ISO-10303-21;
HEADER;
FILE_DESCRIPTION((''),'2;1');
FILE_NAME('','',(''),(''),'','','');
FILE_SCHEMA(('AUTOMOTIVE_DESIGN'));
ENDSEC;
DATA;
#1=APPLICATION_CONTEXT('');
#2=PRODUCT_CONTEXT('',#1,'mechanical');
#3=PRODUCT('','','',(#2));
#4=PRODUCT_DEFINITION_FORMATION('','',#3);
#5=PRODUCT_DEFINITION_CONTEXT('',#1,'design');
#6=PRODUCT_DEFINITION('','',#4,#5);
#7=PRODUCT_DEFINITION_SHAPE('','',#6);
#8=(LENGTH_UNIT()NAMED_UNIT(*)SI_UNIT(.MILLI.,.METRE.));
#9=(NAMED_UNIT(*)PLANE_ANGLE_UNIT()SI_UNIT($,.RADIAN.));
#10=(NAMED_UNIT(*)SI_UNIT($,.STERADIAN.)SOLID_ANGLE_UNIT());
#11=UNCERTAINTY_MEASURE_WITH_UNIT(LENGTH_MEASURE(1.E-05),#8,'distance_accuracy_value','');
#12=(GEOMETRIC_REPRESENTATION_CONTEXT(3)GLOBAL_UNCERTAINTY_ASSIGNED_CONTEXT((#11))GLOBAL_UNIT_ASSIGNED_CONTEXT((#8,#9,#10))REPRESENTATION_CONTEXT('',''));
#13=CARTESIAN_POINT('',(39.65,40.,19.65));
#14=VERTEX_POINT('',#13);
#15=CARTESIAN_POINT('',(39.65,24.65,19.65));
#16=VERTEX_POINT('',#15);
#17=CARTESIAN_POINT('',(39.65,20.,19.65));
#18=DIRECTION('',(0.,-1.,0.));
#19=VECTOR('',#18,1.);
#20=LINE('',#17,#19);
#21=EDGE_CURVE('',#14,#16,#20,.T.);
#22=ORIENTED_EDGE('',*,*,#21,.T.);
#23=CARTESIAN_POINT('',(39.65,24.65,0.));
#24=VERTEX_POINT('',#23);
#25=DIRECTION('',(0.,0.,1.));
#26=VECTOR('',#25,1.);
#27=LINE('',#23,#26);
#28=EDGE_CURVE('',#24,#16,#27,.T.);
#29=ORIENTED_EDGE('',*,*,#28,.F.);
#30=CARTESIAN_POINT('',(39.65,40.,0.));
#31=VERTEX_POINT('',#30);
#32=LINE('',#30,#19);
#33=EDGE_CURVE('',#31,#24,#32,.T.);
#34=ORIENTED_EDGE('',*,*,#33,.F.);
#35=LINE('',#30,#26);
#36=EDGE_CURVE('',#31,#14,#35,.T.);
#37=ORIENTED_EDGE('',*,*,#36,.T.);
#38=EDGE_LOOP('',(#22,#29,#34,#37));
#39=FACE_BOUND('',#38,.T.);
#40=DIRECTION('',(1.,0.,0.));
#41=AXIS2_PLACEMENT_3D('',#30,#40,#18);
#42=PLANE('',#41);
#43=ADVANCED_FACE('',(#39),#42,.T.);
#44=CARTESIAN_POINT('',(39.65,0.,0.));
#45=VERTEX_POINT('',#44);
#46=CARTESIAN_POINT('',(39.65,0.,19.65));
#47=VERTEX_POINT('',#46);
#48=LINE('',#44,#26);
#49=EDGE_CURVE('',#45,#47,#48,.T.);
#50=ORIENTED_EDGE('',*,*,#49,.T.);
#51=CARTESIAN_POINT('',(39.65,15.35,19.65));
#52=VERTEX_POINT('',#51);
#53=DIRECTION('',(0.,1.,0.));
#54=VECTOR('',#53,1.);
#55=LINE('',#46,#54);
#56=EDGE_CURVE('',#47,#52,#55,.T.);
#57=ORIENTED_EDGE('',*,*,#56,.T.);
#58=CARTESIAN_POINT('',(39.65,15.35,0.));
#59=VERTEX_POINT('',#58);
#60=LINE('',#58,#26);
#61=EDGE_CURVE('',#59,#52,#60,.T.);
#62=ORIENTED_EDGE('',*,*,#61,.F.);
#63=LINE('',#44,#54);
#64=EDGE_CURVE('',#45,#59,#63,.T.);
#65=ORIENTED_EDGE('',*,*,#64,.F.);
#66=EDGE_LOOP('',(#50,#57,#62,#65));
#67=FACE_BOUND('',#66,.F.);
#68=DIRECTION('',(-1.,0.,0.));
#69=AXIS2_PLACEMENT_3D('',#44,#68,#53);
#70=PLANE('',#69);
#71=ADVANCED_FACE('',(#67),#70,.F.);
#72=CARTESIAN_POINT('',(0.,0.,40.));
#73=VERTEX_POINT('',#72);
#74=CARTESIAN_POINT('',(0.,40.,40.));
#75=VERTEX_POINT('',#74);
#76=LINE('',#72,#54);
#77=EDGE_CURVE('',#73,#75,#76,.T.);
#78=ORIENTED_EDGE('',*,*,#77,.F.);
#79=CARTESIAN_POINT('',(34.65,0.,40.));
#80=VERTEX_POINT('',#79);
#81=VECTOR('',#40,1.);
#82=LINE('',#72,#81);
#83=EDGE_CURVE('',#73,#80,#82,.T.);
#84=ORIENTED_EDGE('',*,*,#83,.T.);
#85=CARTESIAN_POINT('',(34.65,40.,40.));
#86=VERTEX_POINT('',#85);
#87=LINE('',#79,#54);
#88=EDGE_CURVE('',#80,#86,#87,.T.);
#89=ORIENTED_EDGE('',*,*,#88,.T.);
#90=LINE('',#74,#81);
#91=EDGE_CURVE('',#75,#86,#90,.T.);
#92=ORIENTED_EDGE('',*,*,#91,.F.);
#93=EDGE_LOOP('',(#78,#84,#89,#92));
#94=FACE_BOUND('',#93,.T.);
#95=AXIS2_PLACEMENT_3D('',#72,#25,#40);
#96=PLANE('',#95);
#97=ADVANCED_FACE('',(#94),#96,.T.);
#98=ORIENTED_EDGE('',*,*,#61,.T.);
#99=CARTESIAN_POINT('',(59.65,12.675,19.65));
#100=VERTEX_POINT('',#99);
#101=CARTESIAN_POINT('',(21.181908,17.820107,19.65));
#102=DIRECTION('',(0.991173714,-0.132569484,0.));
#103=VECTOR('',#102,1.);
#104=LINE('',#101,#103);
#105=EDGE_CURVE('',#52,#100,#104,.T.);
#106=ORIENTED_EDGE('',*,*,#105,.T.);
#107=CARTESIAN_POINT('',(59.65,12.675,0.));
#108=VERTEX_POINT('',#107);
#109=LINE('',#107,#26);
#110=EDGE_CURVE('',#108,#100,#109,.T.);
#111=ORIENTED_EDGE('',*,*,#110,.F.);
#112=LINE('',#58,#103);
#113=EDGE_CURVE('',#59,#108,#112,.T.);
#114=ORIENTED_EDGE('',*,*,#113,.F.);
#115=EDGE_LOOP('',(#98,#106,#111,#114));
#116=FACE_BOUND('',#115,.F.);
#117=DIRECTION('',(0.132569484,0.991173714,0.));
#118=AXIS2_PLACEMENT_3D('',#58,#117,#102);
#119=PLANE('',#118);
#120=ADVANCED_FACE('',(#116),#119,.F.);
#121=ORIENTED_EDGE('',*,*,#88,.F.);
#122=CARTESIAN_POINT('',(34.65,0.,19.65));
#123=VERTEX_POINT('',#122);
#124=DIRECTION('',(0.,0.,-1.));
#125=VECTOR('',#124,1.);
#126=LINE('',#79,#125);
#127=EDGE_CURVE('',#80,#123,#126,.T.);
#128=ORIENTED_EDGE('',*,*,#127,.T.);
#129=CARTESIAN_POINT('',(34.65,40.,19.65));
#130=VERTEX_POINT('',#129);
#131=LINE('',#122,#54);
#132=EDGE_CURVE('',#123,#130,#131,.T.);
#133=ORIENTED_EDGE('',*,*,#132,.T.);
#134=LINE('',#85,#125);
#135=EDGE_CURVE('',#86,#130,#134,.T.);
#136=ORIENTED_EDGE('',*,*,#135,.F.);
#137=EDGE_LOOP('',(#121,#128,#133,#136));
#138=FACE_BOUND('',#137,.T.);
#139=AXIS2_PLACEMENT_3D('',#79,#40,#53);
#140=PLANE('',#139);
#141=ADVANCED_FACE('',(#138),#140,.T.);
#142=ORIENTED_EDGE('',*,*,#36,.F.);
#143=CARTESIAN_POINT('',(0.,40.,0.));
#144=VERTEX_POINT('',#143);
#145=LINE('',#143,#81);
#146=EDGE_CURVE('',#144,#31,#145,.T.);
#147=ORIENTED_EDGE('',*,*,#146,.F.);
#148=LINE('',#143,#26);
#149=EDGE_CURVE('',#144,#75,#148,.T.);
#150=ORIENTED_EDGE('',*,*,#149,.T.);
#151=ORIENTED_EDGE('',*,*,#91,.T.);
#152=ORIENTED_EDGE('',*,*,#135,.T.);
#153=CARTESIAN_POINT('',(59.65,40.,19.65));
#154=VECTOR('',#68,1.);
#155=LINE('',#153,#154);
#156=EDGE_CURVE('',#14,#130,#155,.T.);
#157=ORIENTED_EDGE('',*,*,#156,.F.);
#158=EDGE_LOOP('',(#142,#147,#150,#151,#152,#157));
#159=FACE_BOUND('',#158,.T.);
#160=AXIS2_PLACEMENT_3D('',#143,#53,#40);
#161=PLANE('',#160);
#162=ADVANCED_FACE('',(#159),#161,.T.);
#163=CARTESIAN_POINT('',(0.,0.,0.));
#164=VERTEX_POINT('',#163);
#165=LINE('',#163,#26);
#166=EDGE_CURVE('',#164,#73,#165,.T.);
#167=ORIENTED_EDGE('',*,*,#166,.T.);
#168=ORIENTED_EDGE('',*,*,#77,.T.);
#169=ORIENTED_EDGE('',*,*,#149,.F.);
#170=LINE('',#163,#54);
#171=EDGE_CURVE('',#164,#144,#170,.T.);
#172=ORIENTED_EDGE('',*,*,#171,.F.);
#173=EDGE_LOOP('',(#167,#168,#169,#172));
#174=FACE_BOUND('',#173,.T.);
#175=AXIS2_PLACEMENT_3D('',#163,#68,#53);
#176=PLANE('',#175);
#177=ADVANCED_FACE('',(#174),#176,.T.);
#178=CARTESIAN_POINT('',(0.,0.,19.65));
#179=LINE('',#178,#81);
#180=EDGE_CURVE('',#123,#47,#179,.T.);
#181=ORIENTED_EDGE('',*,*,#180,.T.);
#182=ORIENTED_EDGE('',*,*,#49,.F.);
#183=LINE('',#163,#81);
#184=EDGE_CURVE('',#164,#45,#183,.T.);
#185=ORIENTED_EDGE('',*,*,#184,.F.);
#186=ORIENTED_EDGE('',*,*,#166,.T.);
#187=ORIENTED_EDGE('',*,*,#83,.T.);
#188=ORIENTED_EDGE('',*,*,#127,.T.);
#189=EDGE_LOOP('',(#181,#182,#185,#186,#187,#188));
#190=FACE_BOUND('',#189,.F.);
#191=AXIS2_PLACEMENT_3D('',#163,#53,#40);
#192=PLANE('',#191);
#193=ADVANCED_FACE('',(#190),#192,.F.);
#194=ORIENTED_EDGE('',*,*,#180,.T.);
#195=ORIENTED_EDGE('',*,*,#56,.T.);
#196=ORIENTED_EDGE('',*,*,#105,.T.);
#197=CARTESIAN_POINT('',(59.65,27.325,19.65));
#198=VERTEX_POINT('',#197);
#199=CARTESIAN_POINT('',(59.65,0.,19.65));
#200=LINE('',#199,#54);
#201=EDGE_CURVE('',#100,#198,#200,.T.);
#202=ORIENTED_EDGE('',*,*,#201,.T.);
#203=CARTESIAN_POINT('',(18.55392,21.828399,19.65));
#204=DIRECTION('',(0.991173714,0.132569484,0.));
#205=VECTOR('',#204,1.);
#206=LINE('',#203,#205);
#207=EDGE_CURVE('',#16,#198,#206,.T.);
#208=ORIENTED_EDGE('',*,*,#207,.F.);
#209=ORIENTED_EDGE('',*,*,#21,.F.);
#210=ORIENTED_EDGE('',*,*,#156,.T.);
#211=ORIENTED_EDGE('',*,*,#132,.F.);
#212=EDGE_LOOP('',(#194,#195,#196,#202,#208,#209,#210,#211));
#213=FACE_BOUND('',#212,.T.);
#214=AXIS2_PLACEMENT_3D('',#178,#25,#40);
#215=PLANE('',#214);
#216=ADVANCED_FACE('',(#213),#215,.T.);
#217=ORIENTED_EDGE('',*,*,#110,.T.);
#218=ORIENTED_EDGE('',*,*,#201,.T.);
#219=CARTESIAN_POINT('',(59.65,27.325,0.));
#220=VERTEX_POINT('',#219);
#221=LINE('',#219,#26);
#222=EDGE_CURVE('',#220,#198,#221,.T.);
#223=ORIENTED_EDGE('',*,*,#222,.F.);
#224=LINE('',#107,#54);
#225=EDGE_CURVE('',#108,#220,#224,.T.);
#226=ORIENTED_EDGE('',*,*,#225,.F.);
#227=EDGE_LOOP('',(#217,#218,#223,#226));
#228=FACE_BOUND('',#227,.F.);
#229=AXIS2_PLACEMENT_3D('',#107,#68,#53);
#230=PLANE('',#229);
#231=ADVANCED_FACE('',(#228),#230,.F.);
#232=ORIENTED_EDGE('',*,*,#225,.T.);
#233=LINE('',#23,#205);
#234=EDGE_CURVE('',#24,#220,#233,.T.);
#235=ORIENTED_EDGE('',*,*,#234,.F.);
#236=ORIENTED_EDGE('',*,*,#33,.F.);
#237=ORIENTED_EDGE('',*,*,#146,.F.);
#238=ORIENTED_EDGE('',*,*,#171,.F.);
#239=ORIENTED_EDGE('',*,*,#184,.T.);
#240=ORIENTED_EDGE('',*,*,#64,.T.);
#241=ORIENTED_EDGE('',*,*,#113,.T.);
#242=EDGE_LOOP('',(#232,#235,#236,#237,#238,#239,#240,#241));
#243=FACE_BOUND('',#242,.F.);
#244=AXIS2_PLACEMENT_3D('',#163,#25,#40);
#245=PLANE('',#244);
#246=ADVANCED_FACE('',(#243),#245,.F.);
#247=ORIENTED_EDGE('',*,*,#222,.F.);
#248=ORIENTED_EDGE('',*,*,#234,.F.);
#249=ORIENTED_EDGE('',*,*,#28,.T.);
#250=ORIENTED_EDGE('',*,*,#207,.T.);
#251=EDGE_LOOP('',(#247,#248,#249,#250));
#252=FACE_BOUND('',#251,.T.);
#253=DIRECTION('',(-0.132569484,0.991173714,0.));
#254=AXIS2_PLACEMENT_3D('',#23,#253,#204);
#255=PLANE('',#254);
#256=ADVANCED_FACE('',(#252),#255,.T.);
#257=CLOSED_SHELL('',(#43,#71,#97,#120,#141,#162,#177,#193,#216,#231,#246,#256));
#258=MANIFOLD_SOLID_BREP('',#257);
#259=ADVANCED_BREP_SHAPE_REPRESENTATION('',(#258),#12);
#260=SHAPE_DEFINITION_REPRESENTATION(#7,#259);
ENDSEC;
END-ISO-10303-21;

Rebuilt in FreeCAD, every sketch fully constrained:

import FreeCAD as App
import Part
import Sketcher
from FreeCAD import Vector
Q = App.Units.Quantity


def add_polygon(sketch, points):
    """Adds a closed chain of lines whose ends are joined by coincident constraints."""
    first, n = sketch.GeometryCount, len(points)
    for a, b in zip(points, points[1:] + points[:1]):
        sketch.addGeometry(Part.LineSegment(App.Vector(*a, 0), App.Vector(*b, 0)), False)
    for i in range(n):
        sketch.addConstraint(Sketcher.Constraint("Coincident", first + i, 2, first + (i + 1) % n, 1))

doc = App.newDocument("Part")
body = doc.addObject("PartDesign::Body", "Body")

# Sketch on XY plane
sketch1 = doc.addObject("Sketcher::SketchObject", "Sketch")
body.addObject(sketch1)
sketch1.AttachmentSupport = (doc.XY_Plane, [""])
sketch1.MapMode = "FlatFace"
add_polygon(sketch1, [(0, 40), (0, 0), (39.65, 0), (39.65, 15.35), (59.65, 12.675), (59.65, 27.325), (39.65, 24.65), (39.65, 40)])  # lines 0-7
sketch1.addConstraint([
    Sketcher.Constraint("Vertical", 0),
    Sketcher.Constraint("Horizontal", 1),
    Sketcher.Constraint("Vertical", 2),
    Sketcher.Constraint("Vertical", 4),
    Sketcher.Constraint("Vertical", 6),
    Sketcher.Constraint("Horizontal", 7),
    Sketcher.Constraint("Coincident", 0, 2, -1, 1),
    Sketcher.Constraint("Vertical", 2, 2, 5, 2),
    Sketcher.Constraint("Equal", 2, 6),
    Sketcher.Constraint("Equal", 3, 5),
    Sketcher.Constraint("DistanceY", 0, 2, 0, 1, Q("40 mm")),
    Sketcher.Constraint("DistanceX", 2, 2, 3, 2, Q("20 mm")),
    Sketcher.Constraint("DistanceX", 1, 1, 1, 2, Q("39.65 mm")),
    Sketcher.Constraint("DistanceY", 2, 1, 2, 2, Q("15.35 mm")),
    Sketcher.Constraint("DistanceY", -1, 1, 3, 2, Q("12.675 mm")),
])
pad1 = doc.addObject("PartDesign::Pad", "Pad")
body.addObject(pad1)
pad1.Profile = sketch1
pad1.Length = 40

# Sketch on XY plane
sketch2 = doc.addObject("Sketcher::SketchObject", "Sketch001")
body.addObject(sketch2)
sketch2.AttachmentSupport = (doc.XY_Plane, [""])
sketch2.MapMode = "FlatFace"
sketch2.AttachmentOffset = App.Placement(Vector(0, 0, 40), App.Rotation())
add_polygon(sketch2, [(34.65, 40), (34.65, 0), (59.65, 0), (59.65, 40)])  # lines 0-3
sketch2.addConstraint([
    Sketcher.Constraint("Vertical", 0),
    Sketcher.Constraint("Horizontal", 1),
    Sketcher.Constraint("Vertical", 2),
    Sketcher.Constraint("Horizontal", 3),
    Sketcher.Constraint("PointOnObject", 0, 2, -1),
    Sketcher.Constraint("DistanceX", 1, 1, 1, 2, Q("25 mm")),
    Sketcher.Constraint("DistanceY", 0, 2, 0, 1, Q("40 mm")),
    Sketcher.Constraint("DistanceX", -1, 1, 0, 2, Q("34.65 mm")),
])
pocket1 = doc.addObject("PartDesign::Pocket", "Pocket")
body.addObject(pocket1)
pocket1.Profile = sketch2
pocket1.Length = 20.35

doc.recompute()
